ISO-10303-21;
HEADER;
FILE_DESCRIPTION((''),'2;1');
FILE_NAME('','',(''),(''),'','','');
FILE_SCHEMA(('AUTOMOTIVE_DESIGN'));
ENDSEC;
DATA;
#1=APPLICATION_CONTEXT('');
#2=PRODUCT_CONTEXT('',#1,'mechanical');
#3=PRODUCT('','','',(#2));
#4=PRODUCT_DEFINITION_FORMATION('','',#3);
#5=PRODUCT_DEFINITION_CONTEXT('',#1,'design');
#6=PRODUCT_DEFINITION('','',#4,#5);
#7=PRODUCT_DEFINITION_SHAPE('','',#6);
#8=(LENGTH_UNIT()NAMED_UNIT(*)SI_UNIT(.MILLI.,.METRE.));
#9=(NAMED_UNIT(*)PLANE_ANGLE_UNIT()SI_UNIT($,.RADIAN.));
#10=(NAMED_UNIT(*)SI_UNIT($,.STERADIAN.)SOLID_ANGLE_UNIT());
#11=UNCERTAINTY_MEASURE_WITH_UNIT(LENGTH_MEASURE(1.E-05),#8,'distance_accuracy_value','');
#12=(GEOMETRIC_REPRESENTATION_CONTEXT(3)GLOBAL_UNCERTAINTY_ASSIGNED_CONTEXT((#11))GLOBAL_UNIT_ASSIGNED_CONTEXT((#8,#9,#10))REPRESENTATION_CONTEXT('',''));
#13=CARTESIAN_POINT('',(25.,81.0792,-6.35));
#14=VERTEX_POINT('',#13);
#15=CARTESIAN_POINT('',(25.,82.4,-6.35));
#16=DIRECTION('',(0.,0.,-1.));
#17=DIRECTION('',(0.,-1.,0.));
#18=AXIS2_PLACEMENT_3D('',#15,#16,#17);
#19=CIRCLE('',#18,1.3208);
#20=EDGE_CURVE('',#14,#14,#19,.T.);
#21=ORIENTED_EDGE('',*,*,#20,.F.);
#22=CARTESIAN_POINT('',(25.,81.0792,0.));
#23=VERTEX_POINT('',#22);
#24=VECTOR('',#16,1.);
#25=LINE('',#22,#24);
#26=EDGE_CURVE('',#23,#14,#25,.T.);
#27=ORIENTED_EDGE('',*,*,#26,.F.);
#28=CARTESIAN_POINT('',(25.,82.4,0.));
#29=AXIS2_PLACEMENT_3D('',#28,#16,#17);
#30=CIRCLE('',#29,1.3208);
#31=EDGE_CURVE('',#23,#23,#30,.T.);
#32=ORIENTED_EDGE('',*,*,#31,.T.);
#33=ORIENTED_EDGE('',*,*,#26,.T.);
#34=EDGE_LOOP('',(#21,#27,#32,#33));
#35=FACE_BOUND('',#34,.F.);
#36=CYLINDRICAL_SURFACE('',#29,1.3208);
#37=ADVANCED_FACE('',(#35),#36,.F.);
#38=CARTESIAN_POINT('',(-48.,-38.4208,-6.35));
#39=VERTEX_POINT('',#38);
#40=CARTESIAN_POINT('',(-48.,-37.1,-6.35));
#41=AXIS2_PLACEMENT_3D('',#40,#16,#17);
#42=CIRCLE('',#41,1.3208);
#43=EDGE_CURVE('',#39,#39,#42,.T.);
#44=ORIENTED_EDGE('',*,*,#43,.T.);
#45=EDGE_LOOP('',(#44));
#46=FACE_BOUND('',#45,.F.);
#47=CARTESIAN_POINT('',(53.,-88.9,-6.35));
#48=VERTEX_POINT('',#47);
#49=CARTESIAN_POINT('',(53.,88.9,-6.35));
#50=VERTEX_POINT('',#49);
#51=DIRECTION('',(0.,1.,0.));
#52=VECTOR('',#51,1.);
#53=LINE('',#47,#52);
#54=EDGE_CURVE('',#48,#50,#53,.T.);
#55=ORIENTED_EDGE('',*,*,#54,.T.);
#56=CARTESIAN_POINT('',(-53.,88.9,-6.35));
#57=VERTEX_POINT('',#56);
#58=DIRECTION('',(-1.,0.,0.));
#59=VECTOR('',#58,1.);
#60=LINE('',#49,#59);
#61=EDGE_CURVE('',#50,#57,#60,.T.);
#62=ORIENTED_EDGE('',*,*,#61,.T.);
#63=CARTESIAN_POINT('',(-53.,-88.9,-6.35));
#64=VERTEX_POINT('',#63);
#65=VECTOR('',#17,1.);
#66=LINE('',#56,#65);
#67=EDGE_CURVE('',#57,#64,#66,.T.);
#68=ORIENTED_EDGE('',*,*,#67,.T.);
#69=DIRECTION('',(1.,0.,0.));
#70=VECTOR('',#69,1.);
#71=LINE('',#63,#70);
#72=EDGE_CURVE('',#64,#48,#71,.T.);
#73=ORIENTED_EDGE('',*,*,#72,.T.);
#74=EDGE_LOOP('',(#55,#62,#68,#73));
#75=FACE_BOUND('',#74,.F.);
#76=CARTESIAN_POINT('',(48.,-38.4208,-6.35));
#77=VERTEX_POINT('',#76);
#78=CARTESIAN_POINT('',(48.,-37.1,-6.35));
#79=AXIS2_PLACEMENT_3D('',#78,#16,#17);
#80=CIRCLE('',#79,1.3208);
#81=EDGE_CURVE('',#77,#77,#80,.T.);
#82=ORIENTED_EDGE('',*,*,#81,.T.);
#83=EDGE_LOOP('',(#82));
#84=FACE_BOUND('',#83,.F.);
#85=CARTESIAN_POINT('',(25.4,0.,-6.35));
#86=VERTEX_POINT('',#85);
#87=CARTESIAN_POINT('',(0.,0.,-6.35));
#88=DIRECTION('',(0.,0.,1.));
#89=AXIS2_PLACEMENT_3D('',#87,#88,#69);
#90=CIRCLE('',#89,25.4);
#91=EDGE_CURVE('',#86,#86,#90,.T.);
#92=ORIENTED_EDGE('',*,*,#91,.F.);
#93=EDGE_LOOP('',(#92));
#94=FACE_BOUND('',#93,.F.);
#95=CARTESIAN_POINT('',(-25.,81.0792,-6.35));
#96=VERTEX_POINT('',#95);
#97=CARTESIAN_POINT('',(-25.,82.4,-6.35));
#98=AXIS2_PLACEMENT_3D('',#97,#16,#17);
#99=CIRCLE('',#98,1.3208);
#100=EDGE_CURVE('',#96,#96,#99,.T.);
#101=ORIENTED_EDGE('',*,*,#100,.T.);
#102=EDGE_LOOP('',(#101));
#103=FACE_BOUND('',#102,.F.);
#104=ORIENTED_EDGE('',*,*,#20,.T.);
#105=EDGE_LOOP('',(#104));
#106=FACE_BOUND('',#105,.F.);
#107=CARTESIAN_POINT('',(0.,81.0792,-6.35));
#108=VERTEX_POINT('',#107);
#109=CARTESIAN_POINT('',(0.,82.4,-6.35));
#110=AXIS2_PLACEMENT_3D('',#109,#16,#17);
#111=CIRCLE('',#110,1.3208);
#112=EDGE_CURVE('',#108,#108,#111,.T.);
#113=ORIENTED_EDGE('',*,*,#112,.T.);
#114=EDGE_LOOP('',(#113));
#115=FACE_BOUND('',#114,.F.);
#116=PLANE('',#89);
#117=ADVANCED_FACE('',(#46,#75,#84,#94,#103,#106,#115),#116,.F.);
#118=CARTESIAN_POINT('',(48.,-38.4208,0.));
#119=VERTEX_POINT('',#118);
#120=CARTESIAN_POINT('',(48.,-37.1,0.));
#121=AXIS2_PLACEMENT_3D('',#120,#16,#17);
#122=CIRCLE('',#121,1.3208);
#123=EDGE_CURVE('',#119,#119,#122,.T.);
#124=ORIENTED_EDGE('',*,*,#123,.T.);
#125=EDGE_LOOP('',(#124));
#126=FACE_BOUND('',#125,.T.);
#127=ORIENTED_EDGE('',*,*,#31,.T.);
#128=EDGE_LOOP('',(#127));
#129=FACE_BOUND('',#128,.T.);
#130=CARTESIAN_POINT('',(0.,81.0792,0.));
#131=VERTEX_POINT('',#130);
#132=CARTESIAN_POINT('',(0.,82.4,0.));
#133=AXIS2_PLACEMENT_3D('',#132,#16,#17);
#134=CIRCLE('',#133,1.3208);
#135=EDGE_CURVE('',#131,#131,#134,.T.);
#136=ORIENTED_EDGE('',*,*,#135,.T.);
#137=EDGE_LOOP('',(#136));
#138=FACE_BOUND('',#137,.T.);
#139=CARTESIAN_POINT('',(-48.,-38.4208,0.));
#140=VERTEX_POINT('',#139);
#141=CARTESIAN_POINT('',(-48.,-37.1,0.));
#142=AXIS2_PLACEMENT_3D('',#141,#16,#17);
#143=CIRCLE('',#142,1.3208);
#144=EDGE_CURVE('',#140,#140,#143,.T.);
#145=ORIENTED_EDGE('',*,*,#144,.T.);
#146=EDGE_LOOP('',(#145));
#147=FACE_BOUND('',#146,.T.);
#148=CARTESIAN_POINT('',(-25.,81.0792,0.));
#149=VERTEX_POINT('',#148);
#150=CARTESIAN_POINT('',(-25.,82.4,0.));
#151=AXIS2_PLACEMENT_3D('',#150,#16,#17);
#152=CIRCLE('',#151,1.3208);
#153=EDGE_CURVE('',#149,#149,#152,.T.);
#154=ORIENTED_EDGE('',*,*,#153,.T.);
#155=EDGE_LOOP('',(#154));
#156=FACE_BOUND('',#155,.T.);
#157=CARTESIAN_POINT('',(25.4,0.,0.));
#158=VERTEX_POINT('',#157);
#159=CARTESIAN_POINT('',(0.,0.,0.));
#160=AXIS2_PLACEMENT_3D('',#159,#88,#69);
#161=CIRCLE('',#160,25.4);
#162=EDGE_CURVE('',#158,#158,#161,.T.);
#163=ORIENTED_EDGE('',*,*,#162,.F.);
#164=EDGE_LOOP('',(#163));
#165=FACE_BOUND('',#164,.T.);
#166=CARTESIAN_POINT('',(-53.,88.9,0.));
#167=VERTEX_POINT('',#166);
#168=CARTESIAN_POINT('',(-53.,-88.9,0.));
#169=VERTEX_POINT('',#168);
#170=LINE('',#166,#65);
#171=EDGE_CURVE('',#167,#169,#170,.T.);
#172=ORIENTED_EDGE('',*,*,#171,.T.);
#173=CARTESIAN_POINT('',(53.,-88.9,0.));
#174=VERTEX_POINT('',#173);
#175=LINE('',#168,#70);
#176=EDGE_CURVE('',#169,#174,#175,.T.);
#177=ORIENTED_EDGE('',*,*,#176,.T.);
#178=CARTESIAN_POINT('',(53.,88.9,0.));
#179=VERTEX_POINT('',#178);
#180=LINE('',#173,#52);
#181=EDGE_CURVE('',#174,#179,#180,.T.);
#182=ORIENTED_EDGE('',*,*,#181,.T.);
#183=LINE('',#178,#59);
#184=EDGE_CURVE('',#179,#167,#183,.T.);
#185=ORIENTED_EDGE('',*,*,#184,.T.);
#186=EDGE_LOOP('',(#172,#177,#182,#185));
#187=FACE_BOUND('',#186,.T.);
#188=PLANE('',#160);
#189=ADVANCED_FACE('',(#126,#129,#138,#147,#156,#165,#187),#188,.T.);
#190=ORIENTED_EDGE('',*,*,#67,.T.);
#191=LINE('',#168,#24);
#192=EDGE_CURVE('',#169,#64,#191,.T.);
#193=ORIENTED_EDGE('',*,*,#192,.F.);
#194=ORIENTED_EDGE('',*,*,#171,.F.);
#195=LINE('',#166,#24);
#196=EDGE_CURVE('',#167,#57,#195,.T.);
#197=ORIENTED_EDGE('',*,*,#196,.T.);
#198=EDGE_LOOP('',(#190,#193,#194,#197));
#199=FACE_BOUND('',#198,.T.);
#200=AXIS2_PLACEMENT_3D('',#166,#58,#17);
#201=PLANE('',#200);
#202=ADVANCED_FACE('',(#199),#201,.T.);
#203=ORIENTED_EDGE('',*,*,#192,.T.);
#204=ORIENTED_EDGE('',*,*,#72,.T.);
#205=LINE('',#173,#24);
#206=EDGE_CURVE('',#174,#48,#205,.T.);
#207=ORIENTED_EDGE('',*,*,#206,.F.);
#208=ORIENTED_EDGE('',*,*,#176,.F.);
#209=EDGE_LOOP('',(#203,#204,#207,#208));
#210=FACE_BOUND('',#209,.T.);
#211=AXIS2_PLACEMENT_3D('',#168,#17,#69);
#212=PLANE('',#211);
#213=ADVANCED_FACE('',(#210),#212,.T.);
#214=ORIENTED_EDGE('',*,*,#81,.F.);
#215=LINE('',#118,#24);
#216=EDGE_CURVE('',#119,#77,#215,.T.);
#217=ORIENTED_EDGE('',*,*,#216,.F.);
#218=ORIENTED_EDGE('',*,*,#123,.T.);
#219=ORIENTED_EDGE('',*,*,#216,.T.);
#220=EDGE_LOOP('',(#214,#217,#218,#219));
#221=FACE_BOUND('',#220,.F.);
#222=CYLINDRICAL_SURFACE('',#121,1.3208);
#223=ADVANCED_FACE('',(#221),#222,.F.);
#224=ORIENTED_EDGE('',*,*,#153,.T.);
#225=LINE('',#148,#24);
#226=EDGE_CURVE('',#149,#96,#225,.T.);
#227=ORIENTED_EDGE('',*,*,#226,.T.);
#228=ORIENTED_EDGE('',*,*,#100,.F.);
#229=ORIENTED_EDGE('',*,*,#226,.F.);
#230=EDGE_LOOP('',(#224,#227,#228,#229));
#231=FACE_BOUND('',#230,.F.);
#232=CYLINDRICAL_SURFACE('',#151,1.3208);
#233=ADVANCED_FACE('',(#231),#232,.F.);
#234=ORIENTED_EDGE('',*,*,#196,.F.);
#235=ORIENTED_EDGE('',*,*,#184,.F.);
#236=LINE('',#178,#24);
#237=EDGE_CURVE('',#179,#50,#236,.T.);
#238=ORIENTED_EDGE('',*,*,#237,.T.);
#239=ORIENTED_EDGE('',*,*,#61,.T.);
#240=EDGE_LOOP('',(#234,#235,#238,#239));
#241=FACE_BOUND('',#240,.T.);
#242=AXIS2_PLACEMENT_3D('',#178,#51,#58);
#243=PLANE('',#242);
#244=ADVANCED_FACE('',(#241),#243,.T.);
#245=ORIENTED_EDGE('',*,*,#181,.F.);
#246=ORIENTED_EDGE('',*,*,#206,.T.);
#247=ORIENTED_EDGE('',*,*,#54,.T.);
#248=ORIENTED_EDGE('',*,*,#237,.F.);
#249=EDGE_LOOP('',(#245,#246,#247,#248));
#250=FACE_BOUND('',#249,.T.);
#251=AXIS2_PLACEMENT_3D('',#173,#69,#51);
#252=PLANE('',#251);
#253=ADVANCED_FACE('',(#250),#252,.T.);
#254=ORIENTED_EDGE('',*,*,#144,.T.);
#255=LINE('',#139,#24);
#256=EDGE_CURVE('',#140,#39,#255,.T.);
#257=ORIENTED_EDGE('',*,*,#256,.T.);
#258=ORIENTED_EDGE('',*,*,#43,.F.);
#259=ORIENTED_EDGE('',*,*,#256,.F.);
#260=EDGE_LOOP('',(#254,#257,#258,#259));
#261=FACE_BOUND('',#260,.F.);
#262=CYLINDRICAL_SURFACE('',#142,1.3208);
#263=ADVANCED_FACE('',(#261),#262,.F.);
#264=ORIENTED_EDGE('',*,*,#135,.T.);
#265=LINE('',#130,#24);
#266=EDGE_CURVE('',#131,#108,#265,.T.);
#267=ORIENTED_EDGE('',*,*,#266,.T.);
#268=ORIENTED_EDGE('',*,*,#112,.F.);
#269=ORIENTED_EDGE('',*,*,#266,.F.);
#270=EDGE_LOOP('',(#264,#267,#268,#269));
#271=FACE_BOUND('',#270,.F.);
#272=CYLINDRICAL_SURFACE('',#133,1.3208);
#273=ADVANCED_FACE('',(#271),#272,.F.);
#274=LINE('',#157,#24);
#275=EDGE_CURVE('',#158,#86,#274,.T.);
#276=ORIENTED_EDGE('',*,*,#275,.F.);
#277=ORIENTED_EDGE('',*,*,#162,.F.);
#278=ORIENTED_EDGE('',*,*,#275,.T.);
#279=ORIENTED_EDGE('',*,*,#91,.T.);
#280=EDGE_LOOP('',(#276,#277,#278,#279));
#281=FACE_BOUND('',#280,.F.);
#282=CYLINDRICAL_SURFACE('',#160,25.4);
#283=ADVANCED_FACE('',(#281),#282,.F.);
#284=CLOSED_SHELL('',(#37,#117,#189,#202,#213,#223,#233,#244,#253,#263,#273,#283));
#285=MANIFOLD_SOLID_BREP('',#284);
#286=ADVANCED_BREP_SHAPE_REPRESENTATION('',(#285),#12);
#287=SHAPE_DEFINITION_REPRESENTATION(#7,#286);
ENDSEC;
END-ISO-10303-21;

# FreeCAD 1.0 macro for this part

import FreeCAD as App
import Part
import Sketcher
from FreeCAD import Vector
Q = App.Units.Quantity


def add_polygon(sketch, points):
    """Adds a closed chain of lines whose ends are joined by coincident constraints."""
    first, n = sketch.GeometryCount, len(points)
    for a, b in zip(points, points[1:] + points[:1]):
        sketch.addGeometry(Part.LineSegment(App.Vector(*a, 0), App.Vector(*b, 0)), False)
    for i in range(n):
        sketch.addConstraint(Sketcher.Constraint("Coincident", first + i, 2, first + (i + 1) % n, 1))

doc = App.newDocument("Part")
body = doc.addObject("PartDesign::Body", "Body")

# Sketch on XY plane
sketch1 = doc.addObject("Sketcher::SketchObject", "Sketch")
body.addObject(sketch1)
sketch1.AttachmentSupport = (doc.XY_Plane, [""])
sketch1.MapMode = "FlatFace"
add_polygon(sketch1, [(-53, 89), (-53, -89), (53, -89), (53, 89)])  # lines 0-3
sketch1.addConstraint([
    Sketcher.Constraint("Vertical", 0),
    Sketcher.Constraint("Horizontal", 1),
    Sketcher.Constraint("Vertical", 2),
    Sketcher.Constraint("Horizontal", 3),
    Sketcher.Constraint("Symmetric", 0, 2, 2, 2, -1, 1),
    Sketcher.Constraint("DistanceY", 0, 2, 0, 1, Q("7 in")),
    Sketcher.Constraint("DistanceX", 1, 1, 1, 2, 106.0),
])
pad1 = doc.addObject("PartDesign::Pad", "Pad")
body.addObject(pad1)
pad1.Profile = sketch1
pad1.Length = Q("0.25 in")
pad1.Reversed = True

# Sketch on XY plane
sketch2 = doc.addObject("Sketcher::SketchObject", "Sketch001")
body.addObject(sketch2)
sketch2.AttachmentSupport = (doc.XY_Plane, [""])
sketch2.MapMode = "FlatFace"
sketch2.addGeometry(Part.Circle(Vector(0, 0, 0), Vector(0, 0, 1), 25), False)
sketch2.addConstraint([
    Sketcher.Constraint("Coincident", 0, 3, -1, 1),
    Sketcher.Constraint("Diameter", 0, Q("2 in")),
])
pocket1 = doc.addObject("PartDesign::Pocket", "Pocket")
body.addObject(pocket1)
pocket1.Profile = sketch2
pocket1.Type = "ThroughAll"

# Sketch on XY plane
sketch3 = doc.addObject("Sketcher::SketchObject", "Sketch002")
body.addObject(sketch3)
sketch3.AttachmentSupport = (doc.XY_Plane, [""])
sketch3.MapMode = "FlatFace"
sketch3.addGeometry([
    Part.Circle(Vector(0, 82.4, 0), Vector(0, 0, 1), 1.3),
    Part.Circle(Vector(123.3, 23.4, 0), Vector(0, 0, 1), 1.3),
    Part.Circle(Vector(-25, 82.4, 0), Vector(0, 0, 1), 1.3),
    Part.Circle(Vector(25, 82.4, 0), Vector(0, 0, 1), 1.3),
], False)
sketch3.addConstraint([
    Sketcher.Constraint("Equal", 0, 1),
    Sketcher.Constraint("Equal", 1, 2),
    Sketcher.Constraint("Equal", 2, 3),
    Sketcher.Constraint("Symmetric", 2, 3, 3, 3, -2),
    Sketcher.Constraint("PointOnObject", 0, 3, -2),
    Sketcher.Constraint("Horizontal", 0, 3, 2, 3),
    Sketcher.Constraint("Diameter", 0, Q("0.104 in")),
    Sketcher.Constraint("DistanceY", -1, 1, 0, 3, Q("3.2441 in")),
    Sketcher.Constraint("DistanceX", 2, 3, 3, 3, Q("1.9685 in")),
    Sketcher.Constraint("DistanceX", -1, 1, 1, 3, 123.3454),
    Sketcher.Constraint("DistanceY", -1, 1, 1, 3, 23.3667),
])
doc.recompute()
hole = doc.addObject("PartDesign::Hole", "Hole")
body.addObject(hole)
hole.Profile = sketch3
hole.ThreadType = "None"
hole.Diameter = Q("0.104 in")
hole.DepthType = "ThroughAll"

# Sketch on XY plane
sketch4 = doc.addObject("Sketcher::SketchObject", "Sketch003")
body.addObject(sketch4)
sketch4.AttachmentSupport = (doc.XY_Plane, [""])
sketch4.MapMode = "FlatFace"
sketch4.addGeometry([
    Part.Circle(Vector(-48, -37.1, 0), Vector(0, 0, 1), 1.3),
    Part.Circle(Vector(48, -37.1, 0), Vector(0, 0, 1), 1.3),
], False)
sketch4.addConstraint([
    Sketcher.Constraint("Equal", 0, 1),
    Sketcher.Constraint("Symmetric", 0, 3, 1, 3, -2),
    Sketcher.Constraint("Diameter", 0, Q("0.104 in")),
    Sketcher.Constraint("DistanceX", 0, 3, -1, 1, 48.0),
    Sketcher.Constraint("DistanceY", 0, 3, -1, 1, 37.1),
])
doc.recompute()
hole2 = doc.addObject("PartDesign::Hole", "Hole001")
body.addObject(hole2)
hole2.Profile = sketch4
hole2.ThreadType = "None"
hole2.Diameter = Q("0.104 in")
hole2.DepthType = "ThroughAll"

doc.recompute()
